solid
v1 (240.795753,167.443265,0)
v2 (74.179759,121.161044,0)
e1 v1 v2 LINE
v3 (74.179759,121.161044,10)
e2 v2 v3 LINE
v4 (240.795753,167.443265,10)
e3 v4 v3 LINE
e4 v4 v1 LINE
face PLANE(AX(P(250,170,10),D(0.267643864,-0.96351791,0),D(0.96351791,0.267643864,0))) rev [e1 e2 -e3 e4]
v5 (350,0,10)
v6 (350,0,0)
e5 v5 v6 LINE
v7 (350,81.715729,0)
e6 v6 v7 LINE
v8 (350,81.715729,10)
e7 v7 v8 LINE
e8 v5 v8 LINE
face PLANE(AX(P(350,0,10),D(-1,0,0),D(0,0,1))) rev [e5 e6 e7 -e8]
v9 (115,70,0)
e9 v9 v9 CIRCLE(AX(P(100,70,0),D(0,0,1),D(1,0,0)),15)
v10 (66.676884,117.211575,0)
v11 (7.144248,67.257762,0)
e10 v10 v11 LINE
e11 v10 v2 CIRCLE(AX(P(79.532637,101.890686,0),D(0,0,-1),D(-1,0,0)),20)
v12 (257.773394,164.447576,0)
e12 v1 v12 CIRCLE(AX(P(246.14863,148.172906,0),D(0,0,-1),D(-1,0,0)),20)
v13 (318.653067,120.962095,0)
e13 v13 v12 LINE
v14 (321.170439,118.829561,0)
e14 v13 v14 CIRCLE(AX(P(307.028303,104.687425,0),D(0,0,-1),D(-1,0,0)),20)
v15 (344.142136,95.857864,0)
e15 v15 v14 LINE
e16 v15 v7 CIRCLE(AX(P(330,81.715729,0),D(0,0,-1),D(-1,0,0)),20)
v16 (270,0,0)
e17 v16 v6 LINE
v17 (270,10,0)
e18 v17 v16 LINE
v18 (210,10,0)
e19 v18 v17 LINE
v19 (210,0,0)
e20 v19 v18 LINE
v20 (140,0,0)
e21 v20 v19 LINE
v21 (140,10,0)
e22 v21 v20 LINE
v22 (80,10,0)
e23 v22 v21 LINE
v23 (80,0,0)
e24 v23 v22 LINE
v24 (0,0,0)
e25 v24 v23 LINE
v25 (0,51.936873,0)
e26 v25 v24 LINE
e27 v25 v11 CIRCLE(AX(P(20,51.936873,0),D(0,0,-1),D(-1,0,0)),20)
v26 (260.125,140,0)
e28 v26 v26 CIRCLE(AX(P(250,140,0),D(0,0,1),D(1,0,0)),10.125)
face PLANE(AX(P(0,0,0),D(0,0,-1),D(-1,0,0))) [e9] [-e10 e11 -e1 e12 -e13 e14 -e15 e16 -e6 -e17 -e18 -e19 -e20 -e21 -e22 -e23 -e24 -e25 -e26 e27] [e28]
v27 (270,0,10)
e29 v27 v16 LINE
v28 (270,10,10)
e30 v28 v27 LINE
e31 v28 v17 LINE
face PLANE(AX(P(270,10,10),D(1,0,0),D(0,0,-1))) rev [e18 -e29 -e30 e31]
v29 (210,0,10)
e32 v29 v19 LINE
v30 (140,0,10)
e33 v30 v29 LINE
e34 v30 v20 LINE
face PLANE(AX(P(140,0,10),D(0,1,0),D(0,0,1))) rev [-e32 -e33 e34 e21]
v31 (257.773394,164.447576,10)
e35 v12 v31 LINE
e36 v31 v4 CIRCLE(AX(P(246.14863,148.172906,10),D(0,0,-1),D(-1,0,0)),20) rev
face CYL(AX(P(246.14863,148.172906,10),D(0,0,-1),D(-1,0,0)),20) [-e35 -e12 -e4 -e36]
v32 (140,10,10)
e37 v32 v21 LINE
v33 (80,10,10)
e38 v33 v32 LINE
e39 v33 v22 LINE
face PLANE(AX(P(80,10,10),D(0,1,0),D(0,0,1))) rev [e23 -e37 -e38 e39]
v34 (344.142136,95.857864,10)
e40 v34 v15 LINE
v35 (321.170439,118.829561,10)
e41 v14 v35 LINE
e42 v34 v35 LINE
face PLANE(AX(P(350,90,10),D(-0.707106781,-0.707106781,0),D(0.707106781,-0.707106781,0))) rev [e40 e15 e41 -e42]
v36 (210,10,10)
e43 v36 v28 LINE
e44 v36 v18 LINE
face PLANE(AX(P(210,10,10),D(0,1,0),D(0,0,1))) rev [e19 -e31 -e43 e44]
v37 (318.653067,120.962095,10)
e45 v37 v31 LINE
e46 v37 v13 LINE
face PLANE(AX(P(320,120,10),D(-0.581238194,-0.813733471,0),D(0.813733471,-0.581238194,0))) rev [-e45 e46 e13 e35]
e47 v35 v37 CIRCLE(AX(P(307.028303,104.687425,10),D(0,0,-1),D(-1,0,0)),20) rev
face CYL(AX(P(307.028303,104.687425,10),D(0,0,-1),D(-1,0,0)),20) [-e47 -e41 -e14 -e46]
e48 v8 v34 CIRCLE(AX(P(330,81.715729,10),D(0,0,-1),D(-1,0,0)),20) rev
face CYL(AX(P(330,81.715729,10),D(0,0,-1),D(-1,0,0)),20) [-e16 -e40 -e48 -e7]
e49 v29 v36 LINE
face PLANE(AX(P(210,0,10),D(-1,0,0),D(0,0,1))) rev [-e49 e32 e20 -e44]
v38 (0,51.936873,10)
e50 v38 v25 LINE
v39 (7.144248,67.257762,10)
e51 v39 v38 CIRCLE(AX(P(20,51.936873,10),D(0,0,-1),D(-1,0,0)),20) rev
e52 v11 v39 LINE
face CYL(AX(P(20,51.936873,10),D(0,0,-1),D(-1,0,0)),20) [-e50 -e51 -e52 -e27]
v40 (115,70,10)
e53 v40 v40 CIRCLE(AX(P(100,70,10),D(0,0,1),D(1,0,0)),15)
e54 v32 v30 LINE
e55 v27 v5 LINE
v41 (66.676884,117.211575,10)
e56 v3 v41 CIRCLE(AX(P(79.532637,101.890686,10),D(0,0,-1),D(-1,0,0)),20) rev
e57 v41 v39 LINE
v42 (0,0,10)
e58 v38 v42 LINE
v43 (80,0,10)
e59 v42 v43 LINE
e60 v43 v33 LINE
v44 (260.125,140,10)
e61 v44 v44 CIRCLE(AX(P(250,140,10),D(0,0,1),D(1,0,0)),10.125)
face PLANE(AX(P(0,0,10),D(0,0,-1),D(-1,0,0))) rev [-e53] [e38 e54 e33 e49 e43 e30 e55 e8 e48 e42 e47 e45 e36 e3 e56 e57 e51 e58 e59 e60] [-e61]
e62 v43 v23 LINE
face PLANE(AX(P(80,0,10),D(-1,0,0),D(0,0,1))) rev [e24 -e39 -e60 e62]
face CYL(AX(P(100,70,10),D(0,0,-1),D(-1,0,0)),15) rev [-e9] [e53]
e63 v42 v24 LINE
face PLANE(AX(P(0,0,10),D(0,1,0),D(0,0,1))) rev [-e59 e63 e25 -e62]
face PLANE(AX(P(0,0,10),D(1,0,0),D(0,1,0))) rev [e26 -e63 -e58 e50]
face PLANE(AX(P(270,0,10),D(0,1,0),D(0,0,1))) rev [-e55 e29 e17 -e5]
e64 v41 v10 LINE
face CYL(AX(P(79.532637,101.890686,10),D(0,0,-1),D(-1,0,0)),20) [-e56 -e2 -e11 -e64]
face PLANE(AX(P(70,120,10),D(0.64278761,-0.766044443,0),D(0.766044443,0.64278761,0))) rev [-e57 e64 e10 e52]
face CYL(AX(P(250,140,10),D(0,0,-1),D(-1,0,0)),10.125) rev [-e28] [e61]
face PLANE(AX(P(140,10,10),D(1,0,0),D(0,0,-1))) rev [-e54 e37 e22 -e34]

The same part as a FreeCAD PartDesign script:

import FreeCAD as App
import Part
import Sketcher

V = App.Vector
Q = App.Units.Quantity


def edges_at(feature, points):
    """Names of the edges that pass closest to the given points."""
    edges = feature.Shape.Edges
    near = lambda p: min(range(len(edges)), key=lambda i: edges[i].distToShape(Part.Vertex(*p))[0])
    return sorted({f"Edge{near(p) + 1}" for p in points})

doc = App.newDocument("Part")
params = doc.addObject("Spreadsheet::Sheet", "Params")
for row, (alias, value) in enumerate([
    ("sketch1_diameter", "30 mm"),
    ("sketch1_diameter2", "20.25 mm"),
    ("sketch1_width", "80 mm"),
    ("sketch1_width2", "60 mm"),
    ("sketch1_width3", "70 mm"),
    ("pad1_length", "10 mm"),
    ("fillet_radius", "20 mm"),
], start=1):
    params.set(f"A{row}", alias)
    params.set(f"B{row}", "=" + value)
    params.setAlias(f"B{row}", alias)

body = doc.addObject("PartDesign::Body", "Body")

# Sketch on XY plane
sketch1 = body.newObject("Sketcher::SketchObject", "Sketch")
sketch1.AttachmentSupport = (doc.getObject("XY_Plane"), [""])
sketch1.MapMode = "FlatFace"
sketch1.addGeometry([
    Part.LineSegment(V(350, 0, 0), V(350, 90, 0)),  # 0
    Part.LineSegment(V(350, 90, 0), V(320, 120, 0)),  # 1
    Part.LineSegment(V(320, 120, 0), V(250, 170, 0)),  # 2
    Part.LineSegment(V(250, 170, 0), V(70, 120, 0)),  # 3
    Part.LineSegment(V(70, 120, 0), V(0, 61, 0)),  # 4
    Part.LineSegment(V(0, 61, 0), V(0, 0, 0)),  # 5
    Part.LineSegment(V(0, 0, 0), V(80, 0, 0)),  # 6
    Part.LineSegment(V(80, 0, 0), V(80, 10, 0)),  # 7
    Part.LineSegment(V(80, 10, 0), V(140, 10, 0)),  # 8
    Part.LineSegment(V(140, 10, 0), V(140, 0, 0)),  # 9
    Part.LineSegment(V(140, 0, 0), V(210, 0, 0)),  # 10
    Part.LineSegment(V(210, 0, 0), V(210, 10, 0)),  # 11
    Part.LineSegment(V(210, 10, 0), V(270, 10, 0)),  # 12
    Part.LineSegment(V(270, 10, 0), V(270, 0, 0)),  # 13
    Part.LineSegment(V(270, 0, 0), V(350, 0, 0)),  # 14
    Part.Circle(V(100, 70, 0), V(0, 0, 1), 15),  # 15
    Part.Circle(V(250, 140, 0), V(0, 0, 1), 10),  # 16
], False)
sketch1.addConstraint([
    Sketcher.Constraint("Coincident", 0, 2, 1, 1),
    Sketcher.Constraint("Coincident", 1, 2, 2, 1),
    Sketcher.Constraint("Coincident", 2, 2, 3, 1),
    Sketcher.Constraint("Coincident", 3, 2, 4, 1),
    Sketcher.Constraint("Coincident", 4, 2, 5, 1),
    Sketcher.Constraint("Coincident", 5, 2, 6, 1),
    Sketcher.Constraint("Coincident", 6, 2, 7, 1),
    Sketcher.Constraint("Coincident", 7, 2, 8, 1),
    Sketcher.Constraint("Coincident", 8, 2, 9, 1),
    Sketcher.Constraint("Coincident", 9, 2, 10, 1),
    Sketcher.Constraint("Coincident", 10, 2, 11, 1),
    Sketcher.Constraint("Coincident", 11, 2, 12, 1),
    Sketcher.Constraint("Coincident", 12, 2, 13, 1),
    Sketcher.Constraint("Coincident", 13, 2, 14, 1),
    Sketcher.Constraint("Coincident", 14, 2, 0, 1),
    Sketcher.Constraint("Vertical", 0),
    Sketcher.Constraint("Vertical", 5),
    Sketcher.Constraint("Horizontal", 6),
    Sketcher.Constraint("Vertical", 7),
    Sketcher.Constraint("Horizontal", 8),
    Sketcher.Constraint("Vertical", 9),
    Sketcher.Constraint("Horizontal", 10),
    Sketcher.Constraint("Vertical", 11),
    Sketcher.Constraint("Horizontal", 12),
    Sketcher.Constraint("Vertical", 13),
    Sketcher.Constraint("Horizontal", 14),
    Sketcher.Constraint("Coincident", 5, 2, -1, 1),
    Sketcher.Constraint("PointOnObject", 9, 2, -1),
    Sketcher.Constraint("PointOnObject", 13, 2, -1),
    Sketcher.Constraint("Horizontal", 1, 2, 3, 2),
    Sketcher.Constraint("Horizontal", 8, 2, 11, 2),
    Sketcher.Constraint("Vertical", 16, 3, 2, 2),
    Sketcher.Constraint("Equal", 8, 12),
    Sketcher.Constraint("Equal", 6, 14),
    Sketcher.Constraint("Diameter", 15, Q("30 mm")),
    Sketcher.Constraint("Diameter", 16, Q("20.25 mm")),
    Sketcher.Constraint("DistanceX", 6, 1, 6, 2, Q("80 mm")),
    Sketcher.Constraint("DistanceX", 8, 1, 8, 2, Q("60 mm")),
    Sketcher.Constraint("DistanceX", 10, 1, 10, 2, Q("70 mm")),
    Sketcher.Constraint("DistanceY", 0, 1, 0, 2, Q("90 mm")),
    Sketcher.Constraint("DistanceY", 7, 1, 7, 2, Q("10 mm")),
    Sketcher.Constraint("Angle", 1, Q("135 deg")),
    Sketcher.Constraint("Angle", 4, Q("-140 deg")),
    Sketcher.Constraint("DistanceX", -1, 1, 15, 3, Q("100 mm")),
    Sketcher.Constraint("DistanceY", -1, 1, 15, 3, Q("70 mm")),
    Sketcher.Constraint("DistanceX", -1, 1, 16, 3, Q("250 mm")),
    Sketcher.Constraint("DistanceY", -1, 1, 16, 3, Q("140 mm")),
    Sketcher.Constraint("DistanceX", -1, 1, 1, 2, Q("320 mm")),
    Sketcher.Constraint("DistanceY", -1, 1, 2, 2, Q("170 mm")),
    Sketcher.Constraint("DistanceX", -1, 1, 3, 2, Q("70 mm")),
])
sketch1.setExpression("Constraints[34]", "Params.sketch1_diameter")
sketch1.setExpression("Constraints[35]", "Params.sketch1_diameter2")
sketch1.setExpression("Constraints[36]", "Params.sketch1_width")
sketch1.setExpression("Constraints[37]", "Params.sketch1_width2")
sketch1.setExpression("Constraints[38]", "Params.sketch1_width3")
pad1 = body.newObject("PartDesign::Pad", "Pad")
pad1.Profile = sketch1
pad1.setExpression("Length", "Params.pad1_length")
doc.recompute()

fillet = body.newObject("PartDesign::Fillet", "Fillet")
fillet.Base = (pad1, edges_at(pad1, [
    (0, 61.263, 5),
    (70, 120, 5),
    (250, 170, 5),
    (320, 120, 5),
    (350, 90, 5),
]))
fillet.setExpression("Radius", "Params.fillet_radius")

doc.recompute()
